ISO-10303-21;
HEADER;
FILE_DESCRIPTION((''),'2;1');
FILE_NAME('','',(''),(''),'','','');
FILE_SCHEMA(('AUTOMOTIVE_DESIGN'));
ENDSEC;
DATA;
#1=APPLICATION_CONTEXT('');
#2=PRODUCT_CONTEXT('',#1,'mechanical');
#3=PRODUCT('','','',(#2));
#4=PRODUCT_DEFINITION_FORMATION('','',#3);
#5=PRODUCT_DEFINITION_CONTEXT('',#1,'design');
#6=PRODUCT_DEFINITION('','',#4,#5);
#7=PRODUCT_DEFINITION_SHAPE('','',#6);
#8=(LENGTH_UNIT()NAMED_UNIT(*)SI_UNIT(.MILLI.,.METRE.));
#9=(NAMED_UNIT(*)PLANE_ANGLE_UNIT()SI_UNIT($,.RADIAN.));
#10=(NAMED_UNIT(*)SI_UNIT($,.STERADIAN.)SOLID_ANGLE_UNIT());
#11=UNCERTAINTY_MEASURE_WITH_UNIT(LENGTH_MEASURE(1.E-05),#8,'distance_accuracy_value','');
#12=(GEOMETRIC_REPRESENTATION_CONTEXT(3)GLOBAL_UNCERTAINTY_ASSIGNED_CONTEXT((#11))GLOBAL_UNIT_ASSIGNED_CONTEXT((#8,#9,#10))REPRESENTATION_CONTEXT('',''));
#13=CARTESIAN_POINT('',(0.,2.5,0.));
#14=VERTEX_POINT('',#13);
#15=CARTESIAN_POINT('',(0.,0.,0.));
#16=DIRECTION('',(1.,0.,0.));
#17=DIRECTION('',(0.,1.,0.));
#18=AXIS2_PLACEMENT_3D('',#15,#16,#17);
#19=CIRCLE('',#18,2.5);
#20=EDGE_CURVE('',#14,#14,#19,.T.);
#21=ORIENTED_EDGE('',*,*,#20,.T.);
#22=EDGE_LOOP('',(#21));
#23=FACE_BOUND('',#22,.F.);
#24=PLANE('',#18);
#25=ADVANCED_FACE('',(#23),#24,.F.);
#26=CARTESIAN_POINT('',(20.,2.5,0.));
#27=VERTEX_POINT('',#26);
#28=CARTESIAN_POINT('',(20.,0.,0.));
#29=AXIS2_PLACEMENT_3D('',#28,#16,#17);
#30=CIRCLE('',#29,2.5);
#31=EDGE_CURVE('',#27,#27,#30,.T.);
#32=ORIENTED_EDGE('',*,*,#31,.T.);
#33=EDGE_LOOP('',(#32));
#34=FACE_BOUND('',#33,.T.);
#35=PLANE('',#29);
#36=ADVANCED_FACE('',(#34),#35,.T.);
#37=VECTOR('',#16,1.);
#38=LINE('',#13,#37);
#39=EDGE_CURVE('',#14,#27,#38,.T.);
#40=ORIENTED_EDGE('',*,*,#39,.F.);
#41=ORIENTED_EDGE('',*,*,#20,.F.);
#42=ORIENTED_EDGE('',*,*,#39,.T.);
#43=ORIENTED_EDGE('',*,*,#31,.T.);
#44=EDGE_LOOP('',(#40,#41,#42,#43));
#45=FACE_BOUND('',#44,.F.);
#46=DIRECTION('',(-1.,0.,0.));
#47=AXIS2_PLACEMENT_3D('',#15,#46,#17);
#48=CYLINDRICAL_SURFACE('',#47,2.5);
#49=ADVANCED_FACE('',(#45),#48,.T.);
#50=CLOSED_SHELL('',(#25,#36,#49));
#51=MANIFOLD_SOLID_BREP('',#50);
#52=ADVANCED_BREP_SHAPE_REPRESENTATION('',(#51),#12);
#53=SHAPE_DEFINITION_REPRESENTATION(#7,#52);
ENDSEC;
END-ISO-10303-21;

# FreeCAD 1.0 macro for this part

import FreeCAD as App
import Part
import Sketcher
from FreeCAD import Vector
Q = App.Units.Quantity

doc = App.newDocument("Part")
body = doc.addObject("PartDesign::Body", "Body")

# Sketch on YZ plane
sketch1 = body.newObject("Sketcher::SketchObject", "Sketch")
sketch1.AttachmentSupport = (doc.getObject("YZ_Plane"), [""])
sketch1.MapMode = "FlatFace"
sketch1.addGeometry(Part.Circle(Vector(0, 0, 0), Vector(0, 0, 1), 2.5), False)
sketch1.addConstraint([
    Sketcher.Constraint("Coincident", 0, 3, -1, 1),
    Sketcher.Constraint("Diameter", 0, Q("5 mm")),
])
pad1 = body.newObject("PartDesign::Pad", "Pad")
pad1.Profile = sketch1
pad1.Length = 20

doc.recompute()
